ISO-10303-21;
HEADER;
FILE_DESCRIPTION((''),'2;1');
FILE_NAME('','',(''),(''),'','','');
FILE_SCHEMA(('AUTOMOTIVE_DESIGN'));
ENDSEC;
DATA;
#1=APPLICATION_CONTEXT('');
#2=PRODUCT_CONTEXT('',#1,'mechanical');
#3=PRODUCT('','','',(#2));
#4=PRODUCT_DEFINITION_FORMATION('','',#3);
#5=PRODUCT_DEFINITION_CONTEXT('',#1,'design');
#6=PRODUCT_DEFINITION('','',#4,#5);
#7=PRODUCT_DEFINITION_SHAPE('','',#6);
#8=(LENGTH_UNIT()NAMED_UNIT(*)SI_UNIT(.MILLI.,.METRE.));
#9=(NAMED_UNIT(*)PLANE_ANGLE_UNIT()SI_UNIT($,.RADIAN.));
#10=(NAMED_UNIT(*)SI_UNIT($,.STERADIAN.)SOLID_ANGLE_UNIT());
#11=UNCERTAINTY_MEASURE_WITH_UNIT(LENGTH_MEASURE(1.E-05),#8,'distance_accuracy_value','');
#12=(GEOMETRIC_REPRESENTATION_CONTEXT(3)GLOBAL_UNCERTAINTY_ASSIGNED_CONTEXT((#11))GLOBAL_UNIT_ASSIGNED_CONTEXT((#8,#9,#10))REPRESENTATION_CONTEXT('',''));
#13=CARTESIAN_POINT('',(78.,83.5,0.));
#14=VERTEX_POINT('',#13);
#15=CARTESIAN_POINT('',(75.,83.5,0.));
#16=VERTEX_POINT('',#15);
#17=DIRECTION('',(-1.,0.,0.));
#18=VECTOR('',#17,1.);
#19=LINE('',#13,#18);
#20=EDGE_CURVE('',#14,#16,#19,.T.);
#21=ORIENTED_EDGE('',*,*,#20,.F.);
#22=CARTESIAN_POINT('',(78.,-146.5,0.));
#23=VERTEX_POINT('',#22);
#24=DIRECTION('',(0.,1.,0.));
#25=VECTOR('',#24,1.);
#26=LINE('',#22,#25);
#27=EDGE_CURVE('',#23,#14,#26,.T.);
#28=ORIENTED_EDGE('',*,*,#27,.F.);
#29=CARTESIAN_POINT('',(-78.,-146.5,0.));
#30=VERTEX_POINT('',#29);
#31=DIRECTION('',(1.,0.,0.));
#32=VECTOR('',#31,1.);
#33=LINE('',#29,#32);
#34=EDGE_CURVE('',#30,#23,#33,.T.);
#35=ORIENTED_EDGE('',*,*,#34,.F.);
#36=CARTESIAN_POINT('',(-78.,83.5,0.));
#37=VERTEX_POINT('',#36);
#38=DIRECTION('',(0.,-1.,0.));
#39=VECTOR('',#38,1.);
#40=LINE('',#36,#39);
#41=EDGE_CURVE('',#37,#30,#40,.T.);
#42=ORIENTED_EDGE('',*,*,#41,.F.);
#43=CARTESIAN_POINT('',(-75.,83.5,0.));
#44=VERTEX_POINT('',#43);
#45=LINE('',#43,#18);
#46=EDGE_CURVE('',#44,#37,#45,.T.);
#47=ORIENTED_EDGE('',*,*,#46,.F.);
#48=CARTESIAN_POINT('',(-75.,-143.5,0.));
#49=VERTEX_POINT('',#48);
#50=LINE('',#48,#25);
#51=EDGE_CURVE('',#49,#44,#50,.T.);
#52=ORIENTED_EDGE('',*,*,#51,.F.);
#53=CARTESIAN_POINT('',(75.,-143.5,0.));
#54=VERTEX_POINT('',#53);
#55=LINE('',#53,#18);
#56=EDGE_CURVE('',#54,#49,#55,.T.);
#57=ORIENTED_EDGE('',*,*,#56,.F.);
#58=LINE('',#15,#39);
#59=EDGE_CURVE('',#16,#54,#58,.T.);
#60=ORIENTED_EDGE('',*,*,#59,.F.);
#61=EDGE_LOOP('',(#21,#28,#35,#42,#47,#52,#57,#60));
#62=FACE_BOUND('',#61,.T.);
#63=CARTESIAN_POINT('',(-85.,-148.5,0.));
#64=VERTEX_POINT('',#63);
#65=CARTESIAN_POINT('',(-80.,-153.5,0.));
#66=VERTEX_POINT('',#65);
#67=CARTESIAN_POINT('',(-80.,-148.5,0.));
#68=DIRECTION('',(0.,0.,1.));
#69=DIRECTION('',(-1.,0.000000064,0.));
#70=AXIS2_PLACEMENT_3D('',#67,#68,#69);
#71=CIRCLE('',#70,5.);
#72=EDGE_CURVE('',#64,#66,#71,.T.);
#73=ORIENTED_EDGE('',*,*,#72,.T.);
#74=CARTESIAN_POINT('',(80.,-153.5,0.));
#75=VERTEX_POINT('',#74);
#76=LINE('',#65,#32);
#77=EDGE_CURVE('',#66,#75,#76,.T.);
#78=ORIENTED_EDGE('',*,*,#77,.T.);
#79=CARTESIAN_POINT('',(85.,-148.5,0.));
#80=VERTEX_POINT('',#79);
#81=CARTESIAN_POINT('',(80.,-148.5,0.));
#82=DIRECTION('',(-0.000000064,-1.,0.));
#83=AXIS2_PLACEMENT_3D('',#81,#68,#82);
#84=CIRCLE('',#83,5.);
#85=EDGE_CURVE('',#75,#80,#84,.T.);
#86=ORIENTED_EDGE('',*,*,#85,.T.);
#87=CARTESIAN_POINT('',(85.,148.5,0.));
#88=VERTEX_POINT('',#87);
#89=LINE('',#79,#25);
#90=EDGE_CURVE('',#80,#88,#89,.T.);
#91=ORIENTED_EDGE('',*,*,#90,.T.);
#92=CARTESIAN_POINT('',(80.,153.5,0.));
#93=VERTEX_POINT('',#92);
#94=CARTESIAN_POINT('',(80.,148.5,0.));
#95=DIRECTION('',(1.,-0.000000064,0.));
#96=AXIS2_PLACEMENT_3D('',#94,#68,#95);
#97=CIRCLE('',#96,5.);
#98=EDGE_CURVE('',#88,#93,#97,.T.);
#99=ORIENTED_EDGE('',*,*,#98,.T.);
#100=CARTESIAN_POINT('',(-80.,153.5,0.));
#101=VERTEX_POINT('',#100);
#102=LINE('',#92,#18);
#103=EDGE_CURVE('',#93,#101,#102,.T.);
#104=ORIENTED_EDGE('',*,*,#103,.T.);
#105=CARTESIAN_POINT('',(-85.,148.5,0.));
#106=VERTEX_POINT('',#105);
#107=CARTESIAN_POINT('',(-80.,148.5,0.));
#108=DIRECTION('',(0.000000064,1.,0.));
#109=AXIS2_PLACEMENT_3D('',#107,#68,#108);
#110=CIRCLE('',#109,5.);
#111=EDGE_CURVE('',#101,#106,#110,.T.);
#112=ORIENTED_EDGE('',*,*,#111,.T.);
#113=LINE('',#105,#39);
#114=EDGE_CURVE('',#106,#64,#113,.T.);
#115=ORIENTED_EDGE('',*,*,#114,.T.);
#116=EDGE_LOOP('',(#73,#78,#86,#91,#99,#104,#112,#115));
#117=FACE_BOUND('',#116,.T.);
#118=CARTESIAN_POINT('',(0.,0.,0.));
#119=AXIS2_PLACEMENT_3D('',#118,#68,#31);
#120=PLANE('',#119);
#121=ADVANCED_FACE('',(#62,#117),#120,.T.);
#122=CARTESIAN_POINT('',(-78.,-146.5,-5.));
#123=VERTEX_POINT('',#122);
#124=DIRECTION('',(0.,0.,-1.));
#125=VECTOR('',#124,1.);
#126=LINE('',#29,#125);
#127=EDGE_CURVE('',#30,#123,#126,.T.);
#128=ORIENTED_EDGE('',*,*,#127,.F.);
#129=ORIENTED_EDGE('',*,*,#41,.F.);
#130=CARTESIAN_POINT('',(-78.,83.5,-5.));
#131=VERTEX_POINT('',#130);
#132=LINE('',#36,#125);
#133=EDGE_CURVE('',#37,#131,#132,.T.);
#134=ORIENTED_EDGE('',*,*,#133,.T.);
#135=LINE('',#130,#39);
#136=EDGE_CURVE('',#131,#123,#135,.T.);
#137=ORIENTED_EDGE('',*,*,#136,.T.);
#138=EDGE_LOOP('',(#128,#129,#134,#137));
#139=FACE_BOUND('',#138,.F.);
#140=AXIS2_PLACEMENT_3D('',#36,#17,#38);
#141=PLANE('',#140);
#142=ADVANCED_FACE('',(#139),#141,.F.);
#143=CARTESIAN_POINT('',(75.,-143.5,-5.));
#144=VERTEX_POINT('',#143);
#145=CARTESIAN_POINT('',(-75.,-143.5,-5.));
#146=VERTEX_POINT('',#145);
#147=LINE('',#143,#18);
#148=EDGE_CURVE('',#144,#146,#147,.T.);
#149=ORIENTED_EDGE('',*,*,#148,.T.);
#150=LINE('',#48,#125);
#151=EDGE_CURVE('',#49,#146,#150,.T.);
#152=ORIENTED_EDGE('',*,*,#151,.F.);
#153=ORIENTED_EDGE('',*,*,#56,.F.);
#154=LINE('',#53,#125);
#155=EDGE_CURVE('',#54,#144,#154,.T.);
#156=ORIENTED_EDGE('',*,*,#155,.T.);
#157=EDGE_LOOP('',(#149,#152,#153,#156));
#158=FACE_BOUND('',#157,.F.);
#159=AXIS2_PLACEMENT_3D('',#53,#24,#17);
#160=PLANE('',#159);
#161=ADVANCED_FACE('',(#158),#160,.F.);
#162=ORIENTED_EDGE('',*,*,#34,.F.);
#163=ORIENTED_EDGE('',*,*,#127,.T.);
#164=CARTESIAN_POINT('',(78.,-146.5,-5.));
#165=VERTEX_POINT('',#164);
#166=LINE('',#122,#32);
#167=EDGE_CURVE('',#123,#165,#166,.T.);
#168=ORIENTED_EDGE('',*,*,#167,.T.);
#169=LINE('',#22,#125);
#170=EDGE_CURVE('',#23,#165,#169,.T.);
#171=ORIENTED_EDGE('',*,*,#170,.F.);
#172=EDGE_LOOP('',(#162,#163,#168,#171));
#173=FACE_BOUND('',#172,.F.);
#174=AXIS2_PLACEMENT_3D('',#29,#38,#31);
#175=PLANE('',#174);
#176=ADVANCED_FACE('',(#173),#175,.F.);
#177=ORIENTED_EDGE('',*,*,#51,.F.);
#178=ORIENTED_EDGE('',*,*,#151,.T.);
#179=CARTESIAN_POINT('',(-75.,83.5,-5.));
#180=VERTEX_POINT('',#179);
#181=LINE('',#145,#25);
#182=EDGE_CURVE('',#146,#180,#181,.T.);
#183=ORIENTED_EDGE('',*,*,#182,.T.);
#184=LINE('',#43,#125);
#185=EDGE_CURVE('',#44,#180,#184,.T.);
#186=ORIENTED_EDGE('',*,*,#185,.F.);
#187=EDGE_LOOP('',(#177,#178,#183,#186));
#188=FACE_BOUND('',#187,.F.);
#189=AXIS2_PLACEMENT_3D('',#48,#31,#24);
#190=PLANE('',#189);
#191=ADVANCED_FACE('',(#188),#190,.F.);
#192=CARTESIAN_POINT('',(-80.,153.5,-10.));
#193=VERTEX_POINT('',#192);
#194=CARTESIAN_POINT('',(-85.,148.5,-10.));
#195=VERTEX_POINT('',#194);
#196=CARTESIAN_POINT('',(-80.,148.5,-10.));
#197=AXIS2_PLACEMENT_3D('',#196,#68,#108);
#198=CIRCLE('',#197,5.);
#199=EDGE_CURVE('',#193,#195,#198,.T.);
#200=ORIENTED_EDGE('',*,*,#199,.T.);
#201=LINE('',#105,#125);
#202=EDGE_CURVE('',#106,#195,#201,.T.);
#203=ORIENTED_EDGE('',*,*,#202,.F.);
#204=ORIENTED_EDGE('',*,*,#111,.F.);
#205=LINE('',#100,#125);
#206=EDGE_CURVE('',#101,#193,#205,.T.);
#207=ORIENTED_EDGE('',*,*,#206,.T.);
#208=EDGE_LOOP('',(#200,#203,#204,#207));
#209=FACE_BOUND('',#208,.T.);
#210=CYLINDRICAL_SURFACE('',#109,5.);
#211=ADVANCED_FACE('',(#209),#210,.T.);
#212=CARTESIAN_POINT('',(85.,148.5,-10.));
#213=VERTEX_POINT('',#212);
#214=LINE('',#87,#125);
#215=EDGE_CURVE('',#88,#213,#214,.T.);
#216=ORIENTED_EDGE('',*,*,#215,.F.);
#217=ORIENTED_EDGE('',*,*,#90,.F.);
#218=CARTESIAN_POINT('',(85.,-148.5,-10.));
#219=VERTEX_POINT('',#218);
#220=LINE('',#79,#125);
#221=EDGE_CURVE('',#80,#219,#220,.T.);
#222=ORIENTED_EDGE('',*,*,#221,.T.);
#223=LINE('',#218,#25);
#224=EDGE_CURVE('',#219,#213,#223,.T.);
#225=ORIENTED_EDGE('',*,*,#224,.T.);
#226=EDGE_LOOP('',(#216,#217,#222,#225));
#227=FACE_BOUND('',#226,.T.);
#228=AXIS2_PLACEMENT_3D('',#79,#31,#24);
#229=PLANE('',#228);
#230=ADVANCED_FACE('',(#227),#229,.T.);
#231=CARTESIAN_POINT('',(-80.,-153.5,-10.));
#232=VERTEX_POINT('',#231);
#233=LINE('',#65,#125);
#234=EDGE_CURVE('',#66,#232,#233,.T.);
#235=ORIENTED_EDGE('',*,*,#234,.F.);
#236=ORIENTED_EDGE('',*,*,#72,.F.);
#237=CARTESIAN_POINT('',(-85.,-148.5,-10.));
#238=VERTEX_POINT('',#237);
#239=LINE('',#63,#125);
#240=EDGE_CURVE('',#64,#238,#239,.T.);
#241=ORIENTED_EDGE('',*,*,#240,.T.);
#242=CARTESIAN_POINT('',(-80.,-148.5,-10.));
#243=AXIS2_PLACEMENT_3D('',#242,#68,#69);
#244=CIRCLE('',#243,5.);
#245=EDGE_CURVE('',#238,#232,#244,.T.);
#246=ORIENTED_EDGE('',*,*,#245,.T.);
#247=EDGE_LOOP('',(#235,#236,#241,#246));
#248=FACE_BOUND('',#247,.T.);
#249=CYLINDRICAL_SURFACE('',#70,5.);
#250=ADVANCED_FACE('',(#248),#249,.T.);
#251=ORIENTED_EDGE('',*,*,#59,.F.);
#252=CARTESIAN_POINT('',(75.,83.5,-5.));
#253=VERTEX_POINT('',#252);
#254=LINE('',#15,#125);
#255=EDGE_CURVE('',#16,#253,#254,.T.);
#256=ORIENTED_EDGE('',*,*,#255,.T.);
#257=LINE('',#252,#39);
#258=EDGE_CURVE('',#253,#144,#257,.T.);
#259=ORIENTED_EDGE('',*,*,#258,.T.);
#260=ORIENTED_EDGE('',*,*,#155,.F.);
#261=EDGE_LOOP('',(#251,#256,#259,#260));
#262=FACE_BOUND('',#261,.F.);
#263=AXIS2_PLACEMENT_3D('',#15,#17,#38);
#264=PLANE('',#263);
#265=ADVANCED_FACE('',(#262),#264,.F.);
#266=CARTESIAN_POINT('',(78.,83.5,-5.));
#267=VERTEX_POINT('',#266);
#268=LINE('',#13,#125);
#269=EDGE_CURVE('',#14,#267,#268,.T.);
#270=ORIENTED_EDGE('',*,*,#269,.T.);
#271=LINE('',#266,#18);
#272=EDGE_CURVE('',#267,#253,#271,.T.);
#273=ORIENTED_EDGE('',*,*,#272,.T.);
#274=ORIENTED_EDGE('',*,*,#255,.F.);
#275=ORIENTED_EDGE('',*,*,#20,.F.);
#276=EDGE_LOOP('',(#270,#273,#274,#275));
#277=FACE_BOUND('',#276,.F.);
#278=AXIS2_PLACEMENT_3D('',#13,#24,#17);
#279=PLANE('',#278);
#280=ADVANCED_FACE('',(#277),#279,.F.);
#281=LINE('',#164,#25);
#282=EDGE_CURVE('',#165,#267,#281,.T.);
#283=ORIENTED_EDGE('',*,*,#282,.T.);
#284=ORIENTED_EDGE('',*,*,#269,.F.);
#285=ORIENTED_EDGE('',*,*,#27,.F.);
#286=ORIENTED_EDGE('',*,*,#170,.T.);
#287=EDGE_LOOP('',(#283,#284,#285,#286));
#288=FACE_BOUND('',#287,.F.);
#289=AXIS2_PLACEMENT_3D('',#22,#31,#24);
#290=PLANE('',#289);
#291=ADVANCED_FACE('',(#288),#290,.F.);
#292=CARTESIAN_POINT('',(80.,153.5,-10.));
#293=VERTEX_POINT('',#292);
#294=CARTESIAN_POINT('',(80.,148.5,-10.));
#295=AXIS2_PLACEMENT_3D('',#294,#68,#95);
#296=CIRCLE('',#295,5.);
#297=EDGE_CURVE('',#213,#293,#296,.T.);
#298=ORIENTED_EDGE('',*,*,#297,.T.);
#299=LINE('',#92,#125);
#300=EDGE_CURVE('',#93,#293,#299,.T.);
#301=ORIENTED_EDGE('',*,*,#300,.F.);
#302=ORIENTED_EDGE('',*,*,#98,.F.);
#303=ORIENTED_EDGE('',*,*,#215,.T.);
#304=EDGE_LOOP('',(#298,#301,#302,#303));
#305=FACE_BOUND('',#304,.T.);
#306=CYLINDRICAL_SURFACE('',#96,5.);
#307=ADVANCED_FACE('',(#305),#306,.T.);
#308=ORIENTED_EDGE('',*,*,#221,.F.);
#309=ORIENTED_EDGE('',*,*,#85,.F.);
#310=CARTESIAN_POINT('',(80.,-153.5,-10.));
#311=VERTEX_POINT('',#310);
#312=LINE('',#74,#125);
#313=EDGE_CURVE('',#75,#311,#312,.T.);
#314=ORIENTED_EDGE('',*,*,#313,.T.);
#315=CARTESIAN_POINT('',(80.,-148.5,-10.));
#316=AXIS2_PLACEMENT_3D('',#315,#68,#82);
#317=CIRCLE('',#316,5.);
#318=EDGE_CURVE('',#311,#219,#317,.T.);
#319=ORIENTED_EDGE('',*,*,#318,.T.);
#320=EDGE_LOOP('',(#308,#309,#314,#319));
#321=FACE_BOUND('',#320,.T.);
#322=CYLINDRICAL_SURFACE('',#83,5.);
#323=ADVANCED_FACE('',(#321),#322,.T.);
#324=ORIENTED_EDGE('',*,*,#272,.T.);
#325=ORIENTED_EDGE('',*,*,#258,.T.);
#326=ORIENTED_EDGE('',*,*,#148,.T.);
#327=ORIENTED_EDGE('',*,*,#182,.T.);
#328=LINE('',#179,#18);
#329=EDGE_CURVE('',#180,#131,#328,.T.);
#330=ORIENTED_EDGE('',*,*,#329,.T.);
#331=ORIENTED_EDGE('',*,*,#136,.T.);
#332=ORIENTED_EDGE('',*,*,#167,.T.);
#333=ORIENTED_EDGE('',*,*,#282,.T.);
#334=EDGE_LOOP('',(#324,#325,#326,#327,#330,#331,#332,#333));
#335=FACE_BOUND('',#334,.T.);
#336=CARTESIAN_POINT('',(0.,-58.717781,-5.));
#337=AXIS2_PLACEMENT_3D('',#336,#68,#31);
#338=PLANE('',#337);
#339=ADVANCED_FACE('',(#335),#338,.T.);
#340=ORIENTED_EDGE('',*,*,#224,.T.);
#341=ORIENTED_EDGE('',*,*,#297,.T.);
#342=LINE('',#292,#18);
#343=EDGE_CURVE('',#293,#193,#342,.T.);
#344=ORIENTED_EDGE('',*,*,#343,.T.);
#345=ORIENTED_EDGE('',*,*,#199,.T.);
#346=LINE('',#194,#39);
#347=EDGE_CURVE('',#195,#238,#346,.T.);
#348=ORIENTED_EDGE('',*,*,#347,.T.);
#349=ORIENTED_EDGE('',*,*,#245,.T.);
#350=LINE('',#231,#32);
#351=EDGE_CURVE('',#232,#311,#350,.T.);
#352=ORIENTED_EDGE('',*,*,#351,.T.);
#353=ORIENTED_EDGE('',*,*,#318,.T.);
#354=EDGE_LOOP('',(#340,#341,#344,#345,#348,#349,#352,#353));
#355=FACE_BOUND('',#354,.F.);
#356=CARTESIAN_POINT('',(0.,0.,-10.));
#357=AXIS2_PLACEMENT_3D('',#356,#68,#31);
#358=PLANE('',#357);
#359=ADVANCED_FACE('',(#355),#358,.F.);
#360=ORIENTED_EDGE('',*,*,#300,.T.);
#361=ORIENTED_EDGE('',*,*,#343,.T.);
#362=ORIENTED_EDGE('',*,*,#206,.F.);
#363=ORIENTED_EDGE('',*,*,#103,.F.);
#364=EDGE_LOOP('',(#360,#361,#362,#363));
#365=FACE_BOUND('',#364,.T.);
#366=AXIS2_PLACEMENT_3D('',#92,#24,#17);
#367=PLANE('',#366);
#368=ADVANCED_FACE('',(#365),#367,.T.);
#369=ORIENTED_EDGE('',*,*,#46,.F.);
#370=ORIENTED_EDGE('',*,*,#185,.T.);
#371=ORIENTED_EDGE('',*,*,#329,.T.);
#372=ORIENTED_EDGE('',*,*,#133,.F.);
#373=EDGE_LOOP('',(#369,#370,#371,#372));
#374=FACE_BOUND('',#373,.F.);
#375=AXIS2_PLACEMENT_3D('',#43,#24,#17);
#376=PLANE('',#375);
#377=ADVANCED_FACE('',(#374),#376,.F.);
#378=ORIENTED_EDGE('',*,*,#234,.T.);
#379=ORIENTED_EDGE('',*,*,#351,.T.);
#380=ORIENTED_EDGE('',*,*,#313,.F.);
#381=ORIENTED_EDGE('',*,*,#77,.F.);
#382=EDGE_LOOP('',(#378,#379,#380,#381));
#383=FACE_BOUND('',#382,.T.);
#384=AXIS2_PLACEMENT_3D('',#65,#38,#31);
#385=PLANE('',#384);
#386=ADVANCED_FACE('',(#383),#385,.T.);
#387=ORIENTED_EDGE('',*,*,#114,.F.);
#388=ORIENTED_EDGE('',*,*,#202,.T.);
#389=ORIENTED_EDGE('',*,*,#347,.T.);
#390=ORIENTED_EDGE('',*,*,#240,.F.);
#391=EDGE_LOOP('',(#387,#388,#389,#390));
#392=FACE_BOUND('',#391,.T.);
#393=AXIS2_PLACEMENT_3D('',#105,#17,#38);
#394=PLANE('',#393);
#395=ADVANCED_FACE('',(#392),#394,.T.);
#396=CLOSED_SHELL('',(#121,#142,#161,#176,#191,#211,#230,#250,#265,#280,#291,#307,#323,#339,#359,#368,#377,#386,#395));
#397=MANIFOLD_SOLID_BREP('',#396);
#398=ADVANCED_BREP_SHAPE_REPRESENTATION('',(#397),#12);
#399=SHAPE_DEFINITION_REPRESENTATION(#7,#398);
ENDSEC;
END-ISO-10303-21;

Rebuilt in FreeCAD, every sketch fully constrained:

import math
import FreeCAD as App
import Part
import Sketcher
Q = App.Units.Quantity

doc = App.newDocument("Part")
body = doc.addObject("PartDesign::Body", "Body")

sketch1 = body.newObject("Sketcher::SketchObject", "Sketch")
sketch1.AttachmentSupport = (doc.getObject("XY_Plane"), [""])
sketch1.MapMode = "FlatFace"
sketch1.addGeometry([
    Part.ArcOfCircle(Part.Circle(App.Vector(80, 148.5, 0), App.Vector(0, 0, 1), 5), math.radians(0), math.radians(90)),
    Part.LineSegment(App.Vector(80, 153.5, 0), App.Vector(-80, 153.5, 0)),
    Part.ArcOfCircle(Part.Circle(App.Vector(-80, 148.5, 0), App.Vector(0, 0, 1), 5), math.radians(90), math.radians(180)),
    Part.LineSegment(App.Vector(-85, 148.5, 0), App.Vector(-85, -148.5, 0)),
    Part.ArcOfCircle(Part.Circle(App.Vector(-80, -148.5, 0), App.Vector(0, 0, 1), 5), math.radians(180), math.radians(270)),
    Part.LineSegment(App.Vector(-80, -153.5, 0), App.Vector(80, -153.5, 0)),
    Part.ArcOfCircle(Part.Circle(App.Vector(80, -148.5, 0), App.Vector(0, 0, 1), 5), math.radians(-90), math.radians(0)),
    Part.LineSegment(App.Vector(85, -148.5, 0), App.Vector(85, 148.5, 0)),
], False)
sketch1.addConstraint([
    Sketcher.Constraint("Tangent", 0, 2, 1, 1),
    Sketcher.Constraint("Tangent", 1, 2, 2, 1),
    Sketcher.Constraint("Tangent", 2, 2, 3, 1),
    Sketcher.Constraint("Tangent", 3, 2, 4, 1),
    Sketcher.Constraint("Tangent", 4, 2, 5, 1),
    Sketcher.Constraint("Tangent", 5, 2, 6, 1),
    Sketcher.Constraint("Tangent", 6, 2, 7, 1),
    Sketcher.Constraint("Tangent", 7, 2, 0, 1),
    Sketcher.Constraint("Horizontal", 1),
    Sketcher.Constraint("Vertical", 3),
    Sketcher.Constraint("Horizontal", 5),
    Sketcher.Constraint("Vertical", 7),
    Sketcher.Constraint("Equal", 0, 2),
    Sketcher.Constraint("Equal", 2, 4),
    Sketcher.Constraint("Equal", 4, 6),
    Sketcher.Constraint("Symmetric", 0, 3, 4, 3, -1, 1),
    Sketcher.Constraint("Radius", 0, Q("5 mm")),
    Sketcher.Constraint("DistanceX", 1, 2, 1, 1, Q("160 mm")),
    Sketcher.Constraint("DistanceY", 3, 2, 3, 1, Q("297 mm")),
])
pad1 = body.newObject("PartDesign::Pad", "Pad")
pad1.Profile = sketch1
pad1.Length = 10
pad1.Reversed = True

sketch2 = body.newObject("Sketcher::SketchObject", "Sketch001")
sketch2.AttachmentSupport = (doc.getObject("XY_Plane"), [""])
sketch2.MapMode = "FlatFace"
sketch2.addGeometry([
    Part.LineSegment(App.Vector(-75, 83.5, 0), App.Vector(-78, 83.5, 0)),
    Part.LineSegment(App.Vector(-78, 83.5, 0), App.Vector(-78, -146.5, 0)),
    Part.LineSegment(App.Vector(-78, -146.5, 0), App.Vector(78, -146.5, 0)),
    Part.LineSegment(App.Vector(78, -146.5, 0), App.Vector(78, 83.5, 0)),
    Part.LineSegment(App.Vector(78, 83.5, 0), App.Vector(75, 83.5, 0)),
    Part.LineSegment(App.Vector(75, 83.5, 0), App.Vector(75, -143.5, 0)),
    Part.LineSegment(App.Vector(75, -143.5, 0), App.Vector(-75, -143.5, 0)),
    Part.LineSegment(App.Vector(-75, -143.5, 0), App.Vector(-75, 83.5, 0)),
], False)
sketch2.addConstraint([
    Sketcher.Constraint("Coincident", 0, 2, 1, 1),
    Sketcher.Constraint("Coincident", 1, 2, 2, 1),
    Sketcher.Constraint("Coincident", 2, 2, 3, 1),
    Sketcher.Constraint("Coincident", 3, 2, 4, 1),
    Sketcher.Constraint("Coincident", 4, 2, 5, 1),
    Sketcher.Constraint("Coincident", 5, 2, 6, 1),
    Sketcher.Constraint("Coincident", 6, 2, 7, 1),
    Sketcher.Constraint("Coincident", 7, 2, 0, 1),
    Sketcher.Constraint("Horizontal", 0),
    Sketcher.Constraint("Vertical", 1),
    Sketcher.Constraint("Horizontal", 2),
    Sketcher.Constraint("Vertical", 3),
    Sketcher.Constraint("Horizontal", 4),
    Sketcher.Constraint("Vertical", 5),
    Sketcher.Constraint("Horizontal", 6),
    Sketcher.Constraint("Vertical", 7),
    Sketcher.Constraint("Symmetric", 0, 2, 3, 2, -2),
    Sketcher.Constraint("Equal", 0, 4),
    Sketcher.Constraint("DistanceX", 0, 2, 0, 1, Q("3 mm")),
    Sketcher.Constraint("DistanceX", 2, 1, 2, 2, Q("156 mm")),
    Sketcher.Constraint("DistanceY", 1, 2, 1, 1, Q("230 mm")),
    Sketcher.Constraint("DistanceY", 5, 2, 5, 1, Q("227 mm")),
    Sketcher.Constraint("DistanceY", -1, 1, 0, 2, Q("83.5 mm")),
])
pocket1 = body.newObject("PartDesign::Pocket", "Pocket")
pocket1.Profile = sketch2
pocket1.Length = 5

doc.recompute()
